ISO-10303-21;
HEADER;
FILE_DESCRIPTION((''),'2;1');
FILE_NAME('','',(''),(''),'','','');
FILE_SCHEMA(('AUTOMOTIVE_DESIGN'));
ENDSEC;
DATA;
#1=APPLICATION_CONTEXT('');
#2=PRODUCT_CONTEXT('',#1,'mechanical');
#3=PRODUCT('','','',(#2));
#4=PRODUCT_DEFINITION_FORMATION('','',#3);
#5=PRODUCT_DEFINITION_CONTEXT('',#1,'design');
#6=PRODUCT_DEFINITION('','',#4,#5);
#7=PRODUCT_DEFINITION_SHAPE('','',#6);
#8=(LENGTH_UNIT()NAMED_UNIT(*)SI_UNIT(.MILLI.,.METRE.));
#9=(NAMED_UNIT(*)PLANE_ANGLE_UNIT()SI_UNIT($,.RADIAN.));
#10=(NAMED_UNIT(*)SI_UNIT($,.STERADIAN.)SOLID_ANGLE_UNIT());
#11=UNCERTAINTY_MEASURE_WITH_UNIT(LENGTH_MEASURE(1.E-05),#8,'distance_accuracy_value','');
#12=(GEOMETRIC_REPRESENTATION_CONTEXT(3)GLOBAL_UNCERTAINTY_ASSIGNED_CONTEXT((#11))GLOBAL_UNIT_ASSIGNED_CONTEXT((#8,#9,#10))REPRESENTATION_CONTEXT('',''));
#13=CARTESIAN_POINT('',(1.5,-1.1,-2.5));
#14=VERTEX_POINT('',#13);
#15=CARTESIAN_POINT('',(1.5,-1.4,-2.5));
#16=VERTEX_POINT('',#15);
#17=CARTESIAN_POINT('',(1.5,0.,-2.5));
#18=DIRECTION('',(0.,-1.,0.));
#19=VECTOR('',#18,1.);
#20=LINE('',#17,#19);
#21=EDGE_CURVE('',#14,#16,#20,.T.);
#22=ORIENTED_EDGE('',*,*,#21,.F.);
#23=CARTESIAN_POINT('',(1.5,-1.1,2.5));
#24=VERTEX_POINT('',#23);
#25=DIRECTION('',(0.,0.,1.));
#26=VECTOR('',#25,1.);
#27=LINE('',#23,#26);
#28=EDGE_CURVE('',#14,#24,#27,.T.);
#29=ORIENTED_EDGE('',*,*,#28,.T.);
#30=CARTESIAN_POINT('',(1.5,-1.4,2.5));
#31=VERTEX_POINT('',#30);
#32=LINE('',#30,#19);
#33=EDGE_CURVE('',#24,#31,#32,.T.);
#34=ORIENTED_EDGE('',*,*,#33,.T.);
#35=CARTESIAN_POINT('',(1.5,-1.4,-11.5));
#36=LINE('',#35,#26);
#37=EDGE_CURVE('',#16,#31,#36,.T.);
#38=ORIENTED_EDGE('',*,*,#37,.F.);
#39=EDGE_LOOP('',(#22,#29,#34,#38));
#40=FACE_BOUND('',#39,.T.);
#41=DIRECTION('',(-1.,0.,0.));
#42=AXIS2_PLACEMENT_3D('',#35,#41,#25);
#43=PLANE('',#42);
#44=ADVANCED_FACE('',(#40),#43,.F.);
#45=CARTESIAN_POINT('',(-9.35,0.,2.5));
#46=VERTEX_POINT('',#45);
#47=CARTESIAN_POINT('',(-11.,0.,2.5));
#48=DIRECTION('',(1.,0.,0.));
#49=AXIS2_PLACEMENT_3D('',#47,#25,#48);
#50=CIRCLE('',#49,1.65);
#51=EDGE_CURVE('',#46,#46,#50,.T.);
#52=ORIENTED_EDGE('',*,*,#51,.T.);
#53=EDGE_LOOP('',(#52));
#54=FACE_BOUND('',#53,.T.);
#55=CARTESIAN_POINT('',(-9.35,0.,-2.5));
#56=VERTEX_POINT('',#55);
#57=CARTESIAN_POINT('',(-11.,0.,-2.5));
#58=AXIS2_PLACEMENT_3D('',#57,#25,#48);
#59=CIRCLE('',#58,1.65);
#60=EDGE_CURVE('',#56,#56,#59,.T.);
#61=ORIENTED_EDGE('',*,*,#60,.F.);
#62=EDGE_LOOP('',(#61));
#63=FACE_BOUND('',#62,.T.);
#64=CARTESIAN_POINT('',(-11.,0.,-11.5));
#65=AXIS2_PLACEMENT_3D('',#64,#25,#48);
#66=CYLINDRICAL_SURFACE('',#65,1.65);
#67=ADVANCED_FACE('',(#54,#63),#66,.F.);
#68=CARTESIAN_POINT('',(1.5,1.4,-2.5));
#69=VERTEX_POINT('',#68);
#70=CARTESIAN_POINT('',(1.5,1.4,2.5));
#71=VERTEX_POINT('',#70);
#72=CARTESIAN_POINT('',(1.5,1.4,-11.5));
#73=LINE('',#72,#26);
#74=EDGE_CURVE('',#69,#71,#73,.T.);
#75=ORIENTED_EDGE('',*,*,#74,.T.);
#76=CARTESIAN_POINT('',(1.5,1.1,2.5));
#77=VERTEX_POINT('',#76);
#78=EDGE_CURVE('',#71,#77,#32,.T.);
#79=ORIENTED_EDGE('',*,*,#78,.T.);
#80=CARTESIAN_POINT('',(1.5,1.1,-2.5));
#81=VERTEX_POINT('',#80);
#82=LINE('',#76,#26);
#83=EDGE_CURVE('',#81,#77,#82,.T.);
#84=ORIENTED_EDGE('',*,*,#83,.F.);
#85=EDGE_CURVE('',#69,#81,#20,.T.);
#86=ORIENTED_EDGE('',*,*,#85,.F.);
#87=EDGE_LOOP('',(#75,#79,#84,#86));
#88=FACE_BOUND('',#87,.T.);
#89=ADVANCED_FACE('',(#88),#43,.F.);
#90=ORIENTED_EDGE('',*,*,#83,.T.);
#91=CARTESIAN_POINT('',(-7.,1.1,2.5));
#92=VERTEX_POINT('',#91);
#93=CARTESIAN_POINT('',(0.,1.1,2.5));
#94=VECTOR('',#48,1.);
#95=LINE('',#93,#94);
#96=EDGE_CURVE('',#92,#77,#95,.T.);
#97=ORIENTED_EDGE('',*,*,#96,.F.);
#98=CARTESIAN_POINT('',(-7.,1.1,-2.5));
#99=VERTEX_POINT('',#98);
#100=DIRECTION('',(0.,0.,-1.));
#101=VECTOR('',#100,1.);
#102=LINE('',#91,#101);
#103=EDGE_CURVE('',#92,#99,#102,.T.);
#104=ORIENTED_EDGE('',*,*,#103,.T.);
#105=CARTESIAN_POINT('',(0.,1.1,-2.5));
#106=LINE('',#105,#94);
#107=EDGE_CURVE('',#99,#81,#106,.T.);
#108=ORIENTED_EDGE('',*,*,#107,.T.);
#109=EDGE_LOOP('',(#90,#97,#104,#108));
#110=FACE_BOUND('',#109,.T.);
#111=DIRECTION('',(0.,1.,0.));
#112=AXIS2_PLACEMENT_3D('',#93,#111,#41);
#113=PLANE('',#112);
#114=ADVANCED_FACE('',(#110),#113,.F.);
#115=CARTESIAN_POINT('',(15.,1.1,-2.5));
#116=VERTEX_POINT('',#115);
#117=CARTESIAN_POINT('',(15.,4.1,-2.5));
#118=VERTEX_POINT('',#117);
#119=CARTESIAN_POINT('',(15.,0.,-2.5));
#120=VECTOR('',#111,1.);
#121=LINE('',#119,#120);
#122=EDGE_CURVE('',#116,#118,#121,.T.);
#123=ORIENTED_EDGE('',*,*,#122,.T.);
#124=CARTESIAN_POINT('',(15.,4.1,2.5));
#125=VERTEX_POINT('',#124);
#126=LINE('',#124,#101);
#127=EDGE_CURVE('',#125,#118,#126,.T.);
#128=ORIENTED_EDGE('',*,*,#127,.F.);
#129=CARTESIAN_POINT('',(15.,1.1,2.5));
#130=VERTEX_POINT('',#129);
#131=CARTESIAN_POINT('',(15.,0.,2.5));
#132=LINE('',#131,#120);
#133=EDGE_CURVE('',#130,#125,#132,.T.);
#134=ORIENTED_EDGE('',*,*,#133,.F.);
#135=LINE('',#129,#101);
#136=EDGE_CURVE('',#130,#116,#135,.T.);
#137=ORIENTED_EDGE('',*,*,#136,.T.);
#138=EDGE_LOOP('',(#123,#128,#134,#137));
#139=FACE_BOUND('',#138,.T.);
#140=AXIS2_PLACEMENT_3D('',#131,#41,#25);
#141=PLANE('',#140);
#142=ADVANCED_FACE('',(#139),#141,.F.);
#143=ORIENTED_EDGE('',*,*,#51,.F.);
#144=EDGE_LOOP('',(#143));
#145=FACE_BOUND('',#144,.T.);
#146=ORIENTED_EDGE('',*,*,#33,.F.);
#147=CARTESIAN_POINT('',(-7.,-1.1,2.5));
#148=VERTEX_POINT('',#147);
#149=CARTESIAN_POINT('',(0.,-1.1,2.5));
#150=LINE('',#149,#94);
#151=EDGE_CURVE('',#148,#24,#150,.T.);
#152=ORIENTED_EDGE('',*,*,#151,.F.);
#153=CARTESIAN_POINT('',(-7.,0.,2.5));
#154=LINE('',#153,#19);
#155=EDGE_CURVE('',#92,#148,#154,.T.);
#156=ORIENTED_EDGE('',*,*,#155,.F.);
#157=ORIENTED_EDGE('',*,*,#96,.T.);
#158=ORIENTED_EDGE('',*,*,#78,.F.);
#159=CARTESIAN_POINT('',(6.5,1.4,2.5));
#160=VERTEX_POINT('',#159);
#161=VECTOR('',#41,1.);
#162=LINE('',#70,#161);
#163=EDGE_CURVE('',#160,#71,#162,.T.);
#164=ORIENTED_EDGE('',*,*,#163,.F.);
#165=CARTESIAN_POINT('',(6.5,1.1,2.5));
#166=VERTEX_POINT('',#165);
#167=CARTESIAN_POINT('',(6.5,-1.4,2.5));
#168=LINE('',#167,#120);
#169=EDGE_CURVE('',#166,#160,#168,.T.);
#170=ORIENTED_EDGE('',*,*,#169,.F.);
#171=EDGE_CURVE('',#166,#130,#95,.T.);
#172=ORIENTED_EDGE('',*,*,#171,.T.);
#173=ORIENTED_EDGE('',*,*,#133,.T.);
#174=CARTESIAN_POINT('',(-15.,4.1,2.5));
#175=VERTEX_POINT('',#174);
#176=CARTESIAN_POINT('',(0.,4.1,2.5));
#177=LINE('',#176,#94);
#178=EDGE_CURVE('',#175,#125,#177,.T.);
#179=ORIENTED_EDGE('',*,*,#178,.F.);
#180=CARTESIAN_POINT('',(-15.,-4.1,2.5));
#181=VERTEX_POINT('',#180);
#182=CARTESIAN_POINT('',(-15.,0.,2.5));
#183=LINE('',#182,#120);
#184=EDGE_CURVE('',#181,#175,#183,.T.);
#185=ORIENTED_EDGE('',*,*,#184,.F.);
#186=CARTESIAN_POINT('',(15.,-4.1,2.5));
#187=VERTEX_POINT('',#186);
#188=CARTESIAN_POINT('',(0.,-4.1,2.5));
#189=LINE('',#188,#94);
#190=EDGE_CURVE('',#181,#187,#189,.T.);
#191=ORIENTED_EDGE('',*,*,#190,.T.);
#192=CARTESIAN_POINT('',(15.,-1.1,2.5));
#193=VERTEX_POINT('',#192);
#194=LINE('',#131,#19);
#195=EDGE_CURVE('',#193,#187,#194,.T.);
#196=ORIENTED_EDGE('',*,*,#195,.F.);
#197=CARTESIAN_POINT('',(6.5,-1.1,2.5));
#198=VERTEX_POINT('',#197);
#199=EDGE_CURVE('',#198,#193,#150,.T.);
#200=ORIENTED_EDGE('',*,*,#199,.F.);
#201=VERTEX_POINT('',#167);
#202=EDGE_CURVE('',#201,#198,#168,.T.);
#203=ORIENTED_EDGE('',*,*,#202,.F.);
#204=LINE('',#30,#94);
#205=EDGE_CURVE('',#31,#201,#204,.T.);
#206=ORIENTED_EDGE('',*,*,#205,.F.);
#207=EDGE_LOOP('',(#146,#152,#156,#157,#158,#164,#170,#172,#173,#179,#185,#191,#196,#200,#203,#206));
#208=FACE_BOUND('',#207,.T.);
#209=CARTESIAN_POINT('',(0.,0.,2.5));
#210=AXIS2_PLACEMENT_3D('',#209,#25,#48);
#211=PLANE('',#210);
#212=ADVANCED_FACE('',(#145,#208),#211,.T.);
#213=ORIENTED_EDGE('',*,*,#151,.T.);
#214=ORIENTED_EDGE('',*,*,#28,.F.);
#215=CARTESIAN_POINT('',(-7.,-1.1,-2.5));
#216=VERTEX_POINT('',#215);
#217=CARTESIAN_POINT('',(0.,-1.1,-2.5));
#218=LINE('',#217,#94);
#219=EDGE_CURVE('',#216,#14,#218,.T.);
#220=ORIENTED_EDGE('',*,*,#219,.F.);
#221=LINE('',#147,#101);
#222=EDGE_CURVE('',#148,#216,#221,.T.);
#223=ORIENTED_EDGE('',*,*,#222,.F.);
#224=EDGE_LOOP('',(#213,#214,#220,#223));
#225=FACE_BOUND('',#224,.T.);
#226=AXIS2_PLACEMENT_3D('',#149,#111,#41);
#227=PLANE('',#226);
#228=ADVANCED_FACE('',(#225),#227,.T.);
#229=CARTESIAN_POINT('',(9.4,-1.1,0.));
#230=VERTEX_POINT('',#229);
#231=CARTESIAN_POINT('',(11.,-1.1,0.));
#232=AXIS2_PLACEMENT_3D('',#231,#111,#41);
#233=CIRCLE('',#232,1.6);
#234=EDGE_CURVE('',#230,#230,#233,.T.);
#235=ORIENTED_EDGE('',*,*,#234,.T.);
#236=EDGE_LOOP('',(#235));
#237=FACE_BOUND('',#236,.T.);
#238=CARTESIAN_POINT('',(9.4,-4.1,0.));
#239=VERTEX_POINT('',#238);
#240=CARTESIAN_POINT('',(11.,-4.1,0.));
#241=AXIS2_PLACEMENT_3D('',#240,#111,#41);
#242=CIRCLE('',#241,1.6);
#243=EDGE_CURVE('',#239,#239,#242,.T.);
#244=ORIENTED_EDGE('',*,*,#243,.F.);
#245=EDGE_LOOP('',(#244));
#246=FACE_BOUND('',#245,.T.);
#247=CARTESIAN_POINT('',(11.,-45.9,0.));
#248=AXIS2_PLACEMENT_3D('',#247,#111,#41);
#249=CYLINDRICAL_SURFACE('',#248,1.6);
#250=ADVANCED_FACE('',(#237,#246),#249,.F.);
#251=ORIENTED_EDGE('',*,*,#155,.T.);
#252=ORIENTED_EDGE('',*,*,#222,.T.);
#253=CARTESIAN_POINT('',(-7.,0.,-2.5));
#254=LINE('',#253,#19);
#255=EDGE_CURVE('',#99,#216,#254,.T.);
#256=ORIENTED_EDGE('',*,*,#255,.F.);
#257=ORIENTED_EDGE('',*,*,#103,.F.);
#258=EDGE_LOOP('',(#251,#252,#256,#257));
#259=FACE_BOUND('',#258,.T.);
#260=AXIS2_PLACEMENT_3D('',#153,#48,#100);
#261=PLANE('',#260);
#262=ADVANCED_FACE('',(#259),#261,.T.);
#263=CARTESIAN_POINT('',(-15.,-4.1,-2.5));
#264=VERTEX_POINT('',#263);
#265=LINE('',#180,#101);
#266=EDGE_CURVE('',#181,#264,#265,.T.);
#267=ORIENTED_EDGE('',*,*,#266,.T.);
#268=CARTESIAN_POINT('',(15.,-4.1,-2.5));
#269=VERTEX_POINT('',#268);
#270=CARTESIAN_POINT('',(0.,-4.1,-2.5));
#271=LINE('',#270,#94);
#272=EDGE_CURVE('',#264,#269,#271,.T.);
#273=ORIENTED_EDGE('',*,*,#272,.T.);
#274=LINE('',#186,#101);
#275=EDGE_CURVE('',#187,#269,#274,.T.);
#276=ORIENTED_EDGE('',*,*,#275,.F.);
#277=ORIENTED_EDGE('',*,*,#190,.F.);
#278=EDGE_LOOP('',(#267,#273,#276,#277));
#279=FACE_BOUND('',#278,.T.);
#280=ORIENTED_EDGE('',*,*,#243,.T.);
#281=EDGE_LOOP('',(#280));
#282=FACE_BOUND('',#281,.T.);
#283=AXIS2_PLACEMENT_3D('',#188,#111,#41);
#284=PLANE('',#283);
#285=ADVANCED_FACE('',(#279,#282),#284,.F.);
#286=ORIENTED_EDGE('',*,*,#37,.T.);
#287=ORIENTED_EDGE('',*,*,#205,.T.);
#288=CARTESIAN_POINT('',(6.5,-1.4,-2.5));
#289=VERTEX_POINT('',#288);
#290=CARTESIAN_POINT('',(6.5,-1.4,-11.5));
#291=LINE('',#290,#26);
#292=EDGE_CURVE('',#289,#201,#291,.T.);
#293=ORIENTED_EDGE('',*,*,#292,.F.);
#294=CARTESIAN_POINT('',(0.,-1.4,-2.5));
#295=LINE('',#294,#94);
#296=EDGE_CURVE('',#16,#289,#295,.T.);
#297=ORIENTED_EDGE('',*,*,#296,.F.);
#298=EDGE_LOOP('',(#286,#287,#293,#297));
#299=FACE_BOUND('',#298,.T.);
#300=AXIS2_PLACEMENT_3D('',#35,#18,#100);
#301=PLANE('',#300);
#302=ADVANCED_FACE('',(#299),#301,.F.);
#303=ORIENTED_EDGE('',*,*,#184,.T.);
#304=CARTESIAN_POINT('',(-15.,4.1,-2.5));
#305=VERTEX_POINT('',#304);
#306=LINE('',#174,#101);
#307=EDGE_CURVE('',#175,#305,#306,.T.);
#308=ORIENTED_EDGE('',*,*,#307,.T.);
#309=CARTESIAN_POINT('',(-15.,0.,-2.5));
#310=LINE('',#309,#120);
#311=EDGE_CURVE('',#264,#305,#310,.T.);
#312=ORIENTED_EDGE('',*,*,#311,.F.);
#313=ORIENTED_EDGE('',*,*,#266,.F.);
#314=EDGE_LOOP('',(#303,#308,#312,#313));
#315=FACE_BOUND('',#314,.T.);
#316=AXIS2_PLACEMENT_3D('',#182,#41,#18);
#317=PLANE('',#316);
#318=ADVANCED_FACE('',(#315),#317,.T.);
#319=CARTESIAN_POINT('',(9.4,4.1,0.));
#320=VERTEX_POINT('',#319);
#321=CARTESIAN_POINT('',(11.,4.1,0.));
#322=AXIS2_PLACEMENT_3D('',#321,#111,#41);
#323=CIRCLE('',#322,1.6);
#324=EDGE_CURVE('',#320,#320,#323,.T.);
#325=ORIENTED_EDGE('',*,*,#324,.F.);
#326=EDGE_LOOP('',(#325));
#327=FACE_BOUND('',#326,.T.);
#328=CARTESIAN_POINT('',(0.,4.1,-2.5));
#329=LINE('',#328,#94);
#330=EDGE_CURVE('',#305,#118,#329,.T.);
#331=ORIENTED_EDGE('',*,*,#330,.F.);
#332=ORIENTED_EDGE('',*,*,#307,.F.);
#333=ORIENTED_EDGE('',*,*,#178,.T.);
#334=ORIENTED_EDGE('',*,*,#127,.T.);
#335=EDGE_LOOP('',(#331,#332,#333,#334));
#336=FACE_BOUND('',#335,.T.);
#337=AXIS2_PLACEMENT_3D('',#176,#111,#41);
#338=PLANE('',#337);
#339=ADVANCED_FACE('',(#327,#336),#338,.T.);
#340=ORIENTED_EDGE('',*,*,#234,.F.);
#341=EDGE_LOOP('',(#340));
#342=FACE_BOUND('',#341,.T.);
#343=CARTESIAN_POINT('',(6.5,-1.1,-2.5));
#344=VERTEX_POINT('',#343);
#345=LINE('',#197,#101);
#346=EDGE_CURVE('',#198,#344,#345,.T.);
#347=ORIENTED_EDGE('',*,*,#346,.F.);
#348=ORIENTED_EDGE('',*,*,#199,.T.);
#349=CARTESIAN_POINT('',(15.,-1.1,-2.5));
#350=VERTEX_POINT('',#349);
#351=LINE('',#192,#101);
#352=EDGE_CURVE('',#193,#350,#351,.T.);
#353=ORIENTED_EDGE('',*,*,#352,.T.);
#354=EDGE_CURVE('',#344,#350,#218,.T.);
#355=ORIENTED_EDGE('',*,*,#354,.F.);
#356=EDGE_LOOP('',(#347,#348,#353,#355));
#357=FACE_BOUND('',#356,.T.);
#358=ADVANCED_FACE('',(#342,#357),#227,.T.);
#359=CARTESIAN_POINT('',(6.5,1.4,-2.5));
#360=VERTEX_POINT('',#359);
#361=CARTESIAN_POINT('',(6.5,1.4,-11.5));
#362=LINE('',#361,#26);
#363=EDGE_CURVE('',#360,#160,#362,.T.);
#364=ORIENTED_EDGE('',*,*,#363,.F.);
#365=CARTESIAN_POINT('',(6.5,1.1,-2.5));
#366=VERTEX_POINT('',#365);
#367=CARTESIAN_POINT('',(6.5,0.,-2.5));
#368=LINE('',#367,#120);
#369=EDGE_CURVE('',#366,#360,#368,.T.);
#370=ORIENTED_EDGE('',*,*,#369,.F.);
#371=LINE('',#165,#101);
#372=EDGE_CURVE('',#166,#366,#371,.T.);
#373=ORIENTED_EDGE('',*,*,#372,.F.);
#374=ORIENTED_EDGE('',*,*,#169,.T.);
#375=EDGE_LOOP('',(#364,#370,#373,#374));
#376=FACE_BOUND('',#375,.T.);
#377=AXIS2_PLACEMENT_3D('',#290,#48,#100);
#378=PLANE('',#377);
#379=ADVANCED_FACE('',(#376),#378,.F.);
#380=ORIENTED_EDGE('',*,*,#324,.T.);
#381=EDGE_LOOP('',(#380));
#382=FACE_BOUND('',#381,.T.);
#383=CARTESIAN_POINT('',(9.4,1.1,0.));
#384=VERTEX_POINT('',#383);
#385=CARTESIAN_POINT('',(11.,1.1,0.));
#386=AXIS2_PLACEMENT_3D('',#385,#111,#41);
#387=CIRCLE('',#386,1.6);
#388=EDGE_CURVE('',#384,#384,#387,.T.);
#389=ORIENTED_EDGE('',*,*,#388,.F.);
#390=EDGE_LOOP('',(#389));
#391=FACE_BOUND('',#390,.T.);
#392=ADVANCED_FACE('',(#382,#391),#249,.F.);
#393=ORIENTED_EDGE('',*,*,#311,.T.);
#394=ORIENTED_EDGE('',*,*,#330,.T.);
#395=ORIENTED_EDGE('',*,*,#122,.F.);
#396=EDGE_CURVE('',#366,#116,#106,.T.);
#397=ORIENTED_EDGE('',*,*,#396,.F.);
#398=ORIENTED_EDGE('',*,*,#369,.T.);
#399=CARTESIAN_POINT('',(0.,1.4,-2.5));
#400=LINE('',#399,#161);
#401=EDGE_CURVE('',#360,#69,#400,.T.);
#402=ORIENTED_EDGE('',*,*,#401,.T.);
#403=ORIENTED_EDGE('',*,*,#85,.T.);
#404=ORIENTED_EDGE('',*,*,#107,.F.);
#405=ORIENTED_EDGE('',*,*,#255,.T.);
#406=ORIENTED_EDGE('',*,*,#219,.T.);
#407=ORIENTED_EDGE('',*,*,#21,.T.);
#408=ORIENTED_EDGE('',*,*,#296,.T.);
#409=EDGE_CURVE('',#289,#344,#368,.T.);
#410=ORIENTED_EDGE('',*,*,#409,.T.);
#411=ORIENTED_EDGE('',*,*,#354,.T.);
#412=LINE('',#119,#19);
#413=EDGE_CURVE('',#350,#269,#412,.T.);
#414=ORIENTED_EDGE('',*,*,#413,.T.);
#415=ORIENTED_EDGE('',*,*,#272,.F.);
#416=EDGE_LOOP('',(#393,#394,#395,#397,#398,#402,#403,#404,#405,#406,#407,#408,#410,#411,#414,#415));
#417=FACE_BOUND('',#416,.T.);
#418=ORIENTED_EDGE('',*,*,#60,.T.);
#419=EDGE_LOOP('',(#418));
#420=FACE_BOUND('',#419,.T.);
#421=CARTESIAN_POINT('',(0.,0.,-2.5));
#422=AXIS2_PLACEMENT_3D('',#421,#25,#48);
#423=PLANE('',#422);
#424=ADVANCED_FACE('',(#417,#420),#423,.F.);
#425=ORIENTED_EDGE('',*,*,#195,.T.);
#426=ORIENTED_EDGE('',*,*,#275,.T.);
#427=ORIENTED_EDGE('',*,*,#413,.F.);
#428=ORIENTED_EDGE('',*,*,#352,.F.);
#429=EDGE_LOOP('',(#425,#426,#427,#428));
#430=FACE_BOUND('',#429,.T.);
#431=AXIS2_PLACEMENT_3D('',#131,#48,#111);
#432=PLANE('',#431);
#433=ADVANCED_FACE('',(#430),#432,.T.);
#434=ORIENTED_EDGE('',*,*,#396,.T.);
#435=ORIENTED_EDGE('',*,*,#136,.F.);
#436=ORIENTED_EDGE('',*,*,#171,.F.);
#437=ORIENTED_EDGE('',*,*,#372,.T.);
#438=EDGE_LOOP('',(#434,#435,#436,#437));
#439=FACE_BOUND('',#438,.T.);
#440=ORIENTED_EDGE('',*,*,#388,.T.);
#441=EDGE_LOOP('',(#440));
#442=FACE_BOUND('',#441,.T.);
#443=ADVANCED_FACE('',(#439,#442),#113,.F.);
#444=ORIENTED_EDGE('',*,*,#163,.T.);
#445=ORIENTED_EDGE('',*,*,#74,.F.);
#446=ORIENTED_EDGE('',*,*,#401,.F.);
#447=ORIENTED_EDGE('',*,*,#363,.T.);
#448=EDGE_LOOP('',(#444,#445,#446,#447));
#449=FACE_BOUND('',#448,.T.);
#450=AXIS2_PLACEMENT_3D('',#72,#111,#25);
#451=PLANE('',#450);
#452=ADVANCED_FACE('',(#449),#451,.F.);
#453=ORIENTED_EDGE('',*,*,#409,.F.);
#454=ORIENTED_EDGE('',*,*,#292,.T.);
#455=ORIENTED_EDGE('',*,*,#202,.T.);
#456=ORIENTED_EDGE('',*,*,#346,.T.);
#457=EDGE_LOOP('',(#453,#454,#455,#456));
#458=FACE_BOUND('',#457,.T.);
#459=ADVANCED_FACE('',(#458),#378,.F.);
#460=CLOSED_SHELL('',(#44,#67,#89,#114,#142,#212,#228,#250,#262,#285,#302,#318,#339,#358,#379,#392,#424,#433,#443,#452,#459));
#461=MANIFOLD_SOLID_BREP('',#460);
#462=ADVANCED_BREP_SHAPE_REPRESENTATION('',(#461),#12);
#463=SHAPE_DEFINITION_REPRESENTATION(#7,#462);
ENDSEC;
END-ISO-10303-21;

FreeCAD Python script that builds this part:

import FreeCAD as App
import Part
import Sketcher
from FreeCAD import Vector

doc = App.newDocument("Part")
body = doc.addObject("PartDesign::Body", "Body")

# Sketch on XY plane
sketch1 = body.newObject("Sketcher::SketchObject", "Sketch")
sketch1.AttachmentSupport = (doc.getObject("XY_Plane"), [""])
sketch1.MapMode = "FlatFace"
sketch1.addGeometry(Part.LineSegment(Vector(-15, 4.1, 0), Vector(-15, -4.1, 0)), False)
sketch1.addGeometry(Part.LineSegment(Vector(-15, -4.1, 0), Vector(15, -4.1, 0)), False)
sketch1.addGeometry(Part.LineSegment(Vector(15, -4.1, 0), Vector(15, -1.1, 0)), False)
sketch1.addGeometry(Part.LineSegment(Vector(15, -1.1, 0), Vector(-7, -1.1, 0)), False)
sketch1.addGeometry(Part.LineSegment(Vector(-7, -1.1, 0), Vector(-7, 1.1, 0)), False)
sketch1.addGeometry(Part.LineSegment(Vector(-7, 1.1, 0), Vector(15, 1.1, 0)), False)
sketch1.addGeometry(Part.LineSegment(Vector(15, 1.1, 0), Vector(15, 4.1, 0)), False)
sketch1.addGeometry(Part.LineSegment(Vector(15, 4.1, 0), Vector(-15, 4.1, 0)), False)
sketch1.addConstraint(Sketcher.Constraint("Coincident", 0, 2, 1, 1))
sketch1.addConstraint(Sketcher.Constraint("Coincident", 1, 2, 2, 1))
sketch1.addConstraint(Sketcher.Constraint("Coincident", 2, 2, 3, 1))
sketch1.addConstraint(Sketcher.Constraint("Coincident", 3, 2, 4, 1))
sketch1.addConstraint(Sketcher.Constraint("Coincident", 4, 2, 5, 1))
sketch1.addConstraint(Sketcher.Constraint("Coincident", 5, 2, 6, 1))
sketch1.addConstraint(Sketcher.Constraint("Coincident", 6, 2, 7, 1))
sketch1.addConstraint(Sketcher.Constraint("Coincident", 7, 2, 0, 1))
sketch1.addConstraint(Sketcher.Constraint("Vertical", 0))
sketch1.addConstraint(Sketcher.Constraint("Horizontal", 1))
sketch1.addConstraint(Sketcher.Constraint("Vertical", 2))
sketch1.addConstraint(Sketcher.Constraint("Horizontal", 3))
sketch1.addConstraint(Sketcher.Constraint("Vertical", 4))
sketch1.addConstraint(Sketcher.Constraint("Horizontal", 5))
sketch1.addConstraint(Sketcher.Constraint("Vertical", 6))
sketch1.addConstraint(Sketcher.Constraint("Horizontal", 7))
sketch1.addConstraint(Sketcher.Constraint("Symmetric", 0, 2, 6, 2, -1, 1))
sketch1.addConstraint(Sketcher.Constraint("Symmetric", 2, 2, 5, 2, -1))
sketch1.addConstraint(Sketcher.Constraint("DistanceX", 1, 1, 1, 2, 30.0))
sketch1.addConstraint(Sketcher.Constraint("DistanceX", 3, 2, 3, 1, 22.0))
sketch1.addConstraint(Sketcher.Constraint("DistanceY", 2, 1, 2, 2, 3.0))
sketch1.addConstraint(Sketcher.Constraint("DistanceY", 0, 2, 0, 1, 8.2))
pad1 = body.newObject("PartDesign::Pad", "Pad")
pad1.Profile = sketch1
pad1.Length = 5
pad1.Midplane = True

# Sketch on XY plane
sketch2 = body.newObject("Sketcher::SketchObject", "Sketch001")
sketch2.AttachmentSupport = (doc.getObject("XY_Plane"), [""])
sketch2.MapMode = "FlatFace"
sketch2.AttachmentOffset = App.Placement(Vector(0, 0, 2.5), App.Rotation())
sketch2.addGeometry(Part.Circle(Vector(-11, 0, 0), Vector(0, 0, 1), 1.6), False)
sketch2.addConstraint(Sketcher.Constraint("PointOnObject", 0, 3, -1))
sketch2.addConstraint(Sketcher.Constraint("Diameter", 0, 3.3))
sketch2.addConstraint(Sketcher.Constraint("DistanceX", 0, 3, -1, 1, 11.0))
pocket1 = body.newObject("PartDesign::Pocket", "Pocket")
pocket1.Profile = sketch2
pocket1.Length = 14

# Sketch on XY plane
sketch3 = body.newObject("Sketcher::SketchObject", "Sketch002")
sketch3.AttachmentSupport = (doc.getObject("XY_Plane"), [""])
sketch3.MapMode = "FlatFace"
sketch3.AttachmentOffset = App.Placement(Vector(0, 0, 2.5), App.Rotation())
sketch3.addGeometry(Part.LineSegment(Vector(1.5, 1.4, 0), Vector(1.5, -1.4, 0)), False)
sketch3.addGeometry(Part.LineSegment(Vector(1.5, -1.4, 0), Vector(6.5, -1.4, 0)), False)
sketch3.addGeometry(Part.LineSegment(Vector(6.5, -1.4, 0), Vector(6.5, 1.4, 0)), False)
sketch3.addGeometry(Part.LineSegment(Vector(6.5, 1.4, 0), Vector(1.5, 1.4, 0)), False)
sketch3.addConstraint(Sketcher.Constraint("Coincident", 0, 2, 1, 1))
sketch3.addConstraint(Sketcher.Constraint("Coincident", 1, 2, 2, 1))
sketch3.addConstraint(Sketcher.Constraint("Coincident", 2, 2, 3, 1))
sketch3.addConstraint(Sketcher.Constraint("Coincident", 3, 2, 0, 1))
sketch3.addConstraint(Sketcher.Constraint("Vertical", 0))
sketch3.addConstraint(Sketcher.Constraint("Horizontal", 1))
sketch3.addConstraint(Sketcher.Constraint("Vertical", 2))
sketch3.addConstraint(Sketcher.Constraint("Horizontal", 3))
sketch3.addConstraint(Sketcher.Constraint("DistanceX", 1, 1, 1, 2, 5.0))
sketch3.addConstraint(Sketcher.Constraint("DistanceY", 0, 2, 0, 1, 2.8))
sketch3.addConstraint(Sketcher.Constraint("DistanceX", -1, 1, 0, 2, 1.5))
sketch3.addConstraint(Sketcher.Constraint("DistanceY", 0, 2, -1, 1, 1.4))
pocket2 = body.newObject("PartDesign::Pocket", "Pocket001")
pocket2.Profile = sketch3
pocket2.Length = 14

# Sketch on XZ plane
sketch4 = body.newObject("Sketcher::SketchObject", "Sketch003")
sketch4.AttachmentSupport = (doc.getObject("XZ_Plane"), [""])
sketch4.MapMode = "FlatFace"
sketch4.AttachmentOffset = App.Placement(Vector(0, 0, -4.1), App.Rotation())
sketch4.addGeometry(Part.Circle(Vector(11, 0, 0), Vector(0, 0, 1), 1.6), False)
sketch4.addConstraint(Sketcher.Constraint("PointOnObject", 0, 3, -1))
sketch4.addConstraint(Sketcher.Constraint("Diameter", 0, 3.2))
sketch4.addConstraint(Sketcher.Constraint("DistanceX", -1, 1, 0, 3, 11.0))
pocket3 = body.newObject("PartDesign::Pocket", "Pocket002")
pocket3.Profile = sketch4
pocket3.Length = 50
pocket3.Reversed = True

doc.recompute()
